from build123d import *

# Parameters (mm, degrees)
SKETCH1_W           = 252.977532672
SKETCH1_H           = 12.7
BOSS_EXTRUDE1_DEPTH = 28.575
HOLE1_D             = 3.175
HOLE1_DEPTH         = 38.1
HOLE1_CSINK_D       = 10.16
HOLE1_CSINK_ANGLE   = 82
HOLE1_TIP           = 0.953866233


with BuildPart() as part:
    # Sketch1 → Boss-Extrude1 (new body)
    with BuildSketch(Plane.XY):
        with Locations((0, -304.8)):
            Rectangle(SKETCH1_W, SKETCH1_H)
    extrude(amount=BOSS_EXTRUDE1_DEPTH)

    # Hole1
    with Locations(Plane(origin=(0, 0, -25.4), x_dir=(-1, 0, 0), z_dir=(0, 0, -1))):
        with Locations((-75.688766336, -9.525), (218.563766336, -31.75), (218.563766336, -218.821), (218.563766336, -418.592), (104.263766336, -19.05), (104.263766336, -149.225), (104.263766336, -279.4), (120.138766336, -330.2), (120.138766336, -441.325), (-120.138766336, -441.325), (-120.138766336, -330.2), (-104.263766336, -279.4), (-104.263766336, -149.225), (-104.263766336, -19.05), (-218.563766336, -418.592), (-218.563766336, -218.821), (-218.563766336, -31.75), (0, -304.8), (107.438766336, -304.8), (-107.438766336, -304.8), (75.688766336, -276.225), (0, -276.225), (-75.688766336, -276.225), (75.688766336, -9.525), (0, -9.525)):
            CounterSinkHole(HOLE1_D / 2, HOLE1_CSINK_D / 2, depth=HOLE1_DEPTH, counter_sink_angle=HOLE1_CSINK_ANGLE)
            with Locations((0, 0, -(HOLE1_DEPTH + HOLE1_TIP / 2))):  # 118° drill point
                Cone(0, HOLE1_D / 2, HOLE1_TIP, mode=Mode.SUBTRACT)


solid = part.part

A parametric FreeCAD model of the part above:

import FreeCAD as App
import Part
import Sketcher
Q = App.Units.Quantity

doc = App.newDocument("Part")
body = doc.addObject("PartDesign::Body", "Body")

sketch1 = doc.addObject("Sketcher::SketchObject", "Sketch")
body.addObject(sketch1)
sketch1.AttachmentSupport = (doc.XY_Plane, [""])
sketch1.MapMode = "FlatFace"
sketch1.addGeometry([
    Part.LineSegment(App.Vector(-126, -298, 0), App.Vector(-126, -311, 0)),
    Part.LineSegment(App.Vector(-126, -311, 0), App.Vector(126, -311, 0)),
    Part.LineSegment(App.Vector(126, -311, 0), App.Vector(126, -298, 0)),
    Part.LineSegment(App.Vector(126, -298, 0), App.Vector(-126, -298, 0)),
], False)
sketch1.addConstraint([
    Sketcher.Constraint("Coincident", 0, 2, 1, 1),
    Sketcher.Constraint("Coincident", 1, 2, 2, 1),
    Sketcher.Constraint("Coincident", 2, 2, 3, 1),
    Sketcher.Constraint("Coincident", 3, 2, 0, 1),
    Sketcher.Constraint("Vertical", 0),
    Sketcher.Constraint("Horizontal", 1),
    Sketcher.Constraint("Vertical", 2),
    Sketcher.Constraint("Horizontal", 3),
    Sketcher.Constraint("DistanceY", 0, 2, 0, 1, Q("0.5 in")),
    Sketcher.Constraint("DistanceY", 0, 2, -1, 1, Q("12.25 in")),
    Sketcher.Constraint("DistanceX", 1, 1, 1, 2, 252.977533),
    Sketcher.Constraint("DistanceX", 0, 2, -1, 1, 126.488766),
])
pad1 = doc.addObject("PartDesign::Pad", "Pad")
body.addObject(pad1)
pad1.Profile = sketch1
pad1.Length = Q("1.125 in")

sketch2 = doc.addObject("Sketcher::SketchObject", "Sketch001")
body.addObject(sketch2)
sketch2.AttachmentSupport = (doc.XY_Plane, [""])
sketch2.MapMode = "FlatFace"
sketch2.AttachmentOffset = App.Placement(App.Vector(0, 0, -1 * 25.4), App.Rotation())
sketch2.addGeometry([
    Part.Circle(App.Vector(75.7, -9.5, 0), App.Vector(0, 0, 1), 1.6),
    Part.Circle(App.Vector(-218.6, -31.8, 0), App.Vector(0, 0, 1), 1.6),
    Part.Circle(App.Vector(-218.6, -218.8, 0), App.Vector(0, 0, 1), 1.6),
    Part.Circle(App.Vector(-218.6, -418.6, 0), App.Vector(0, 0, 1), 1.6),
    Part.Circle(App.Vector(-104.3, -19.1, 0), App.Vector(0, 0, 1), 1.6),
    Part.Circle(App.Vector(-104.3, -149.2, 0), App.Vector(0, 0, 1), 1.6),
    Part.Circle(App.Vector(-104.3, -279.4, 0), App.Vector(0, 0, 1), 1.6),
    Part.Circle(App.Vector(-120.1, -330.2, 0), App.Vector(0, 0, 1), 1.6),
    Part.Circle(App.Vector(-120.1, -441.3, 0), App.Vector(0, 0, 1), 1.6),
    Part.Circle(App.Vector(120.1, -441.3, 0), App.Vector(0, 0, 1), 1.6),
    Part.Circle(App.Vector(120.1, -330.2, 0), App.Vector(0, 0, 1), 1.6),
    Part.Circle(App.Vector(104.3, -279.4, 0), App.Vector(0, 0, 1), 1.6),
    Part.Circle(App.Vector(104.3, -149.2, 0), App.Vector(0, 0, 1), 1.6),
    Part.Circle(App.Vector(104.3, -19.1, 0), App.Vector(0, 0, 1), 1.6),
    Part.Circle(App.Vector(218.6, -418.6, 0), App.Vector(0, 0, 1), 1.6),
    Part.Circle(App.Vector(218.6, -218.8, 0), App.Vector(0, 0, 1), 1.6),
    Part.Circle(App.Vector(218.6, -31.8, 0), App.Vector(0, 0, 1), 1.6),
    Part.Circle(App.Vector(0, -304.8, 0), App.Vector(0, 0, 1), 1.6),
    Part.Circle(App.Vector(-107.4, -304.8, 0), App.Vector(0, 0, 1), 1.6),
    Part.Circle(App.Vector(107.4, -304.8, 0), App.Vector(0, 0, 1), 1.6),
    Part.Circle(App.Vector(-75.7, -276.2, 0), App.Vector(0, 0, 1), 1.6),
    Part.Circle(App.Vector(0, -276.2, 0), App.Vector(0, 0, 1), 1.6),
    Part.Circle(App.Vector(75.7, -276.2, 0), App.Vector(0, 0, 1), 1.6),
    Part.Circle(App.Vector(-75.7, -9.5, 0), App.Vector(0, 0, 1), 1.6),
    Part.Circle(App.Vector(0, -9.5, 0), App.Vector(0, 0, 1), 1.6),
], False)
sketch2.addConstraint([
    Sketcher.Constraint("Equal", 0, 1),
    Sketcher.Constraint("Equal", 1, 2),
    Sketcher.Constraint("Equal", 2, 3),
    Sketcher.Constraint("Equal", 3, 4),
    Sketcher.Constraint("Equal", 4, 5),
    Sketcher.Constraint("Equal", 5, 6),
    Sketcher.Constraint("Equal", 6, 7),
    Sketcher.Constraint("Equal", 7, 8),
    Sketcher.Constraint("Equal", 8, 9),
    Sketcher.Constraint("Equal", 9, 10),
    Sketcher.Constraint("Equal", 10, 11),
    Sketcher.Constraint("Equal", 11, 12),
    Sketcher.Constraint("Equal", 12, 13),
    Sketcher.Constraint("Equal", 13, 14),
    Sketcher.Constraint("Equal", 14, 15),
    Sketcher.Constraint("Equal", 15, 16),
    Sketcher.Constraint("Equal", 16, 17),
    Sketcher.Constraint("Equal", 17, 18),
    Sketcher.Constraint("Equal", 18, 19),
    Sketcher.Constraint("Equal", 19, 20),
    Sketcher.Constraint("Equal", 20, 21),
    Sketcher.Constraint("Equal", 21, 22),
    Sketcher.Constraint("Equal", 22, 23),
    Sketcher.Constraint("Equal", 23, 24),
    Sketcher.Constraint("Symmetric", 8, 3, 9, 3, -2),
    Sketcher.Constraint("Symmetric", 7, 3, 10, 3, -2),
    Sketcher.Constraint("Symmetric", 6, 3, 11, 3, -2),
    Sketcher.Constraint("Symmetric", 5, 3, 12, 3, -2),
    Sketcher.Constraint("Symmetric", 4, 3, 13, 3, -2),
    Sketcher.Constraint("Symmetric", 3, 3, 14, 3, -2),
    Sketcher.Constraint("Symmetric", 2, 3, 15, 3, -2),
    Sketcher.Constraint("Symmetric", 1, 3, 16, 3, -2),
    Sketcher.Constraint("Symmetric", 18, 3, 19, 3, -2),
    Sketcher.Constraint("Symmetric", 20, 3, 22, 3, -2),
    Sketcher.Constraint("Symmetric", 0, 3, 23, 3, -2),
    Sketcher.Constraint("PointOnObject", 17, 3, -2),
    Sketcher.Constraint("PointOnObject", 21, 3, -2),
    Sketcher.Constraint("PointOnObject", 24, 3, -2),
    Sketcher.Constraint("Horizontal", 17, 3, 18, 3),
    Sketcher.Constraint("Horizontal", 20, 3, 21, 3),
    Sketcher.Constraint("Horizontal", 23, 3, 24, 3),
    Sketcher.Constraint("Vertical", 1, 3, 2, 3),
    Sketcher.Constraint("Vertical", 2, 3, 3, 3),
    Sketcher.Constraint("Vertical", 4, 3, 5, 3),
    Sketcher.Constraint("Vertical", 5, 3, 6, 3),
    Sketcher.Constraint("Vertical", 7, 3, 8, 3),
    Sketcher.Constraint("Vertical", 0, 3, 22, 3),
    Sketcher.Constraint("Diameter", 0, Q("0.125 in")),
    Sketcher.Constraint("DistanceY", 6, 3, -1, 1, Q("11 in")),
    Sketcher.Constraint("DistanceY", 7, 3, -1, 1, Q("13 in")),
    Sketcher.Constraint("DistanceY", 17, 3, -1, 1, Q("12 in")),
    Sketcher.Constraint("DistanceY", 20, 3, 5, 3, Q("5 in")),
    Sketcher.Constraint("DistanceX", 1, 3, 4, 3, Q("4.5 in")),
    Sketcher.Constraint("DistanceY", 1, 3, 4, 3, Q("0.5 in")),
    Sketcher.Constraint("DistanceY", 5, 3, 0, 3, Q("5.5 in")),
    Sketcher.Constraint("DistanceY", 8, 3, 5, 3, Q("11.5 in")),
    Sketcher.Constraint("DistanceX", 7, 3, 18, 3, Q("0.5 in")),
    Sketcher.Constraint("DistanceY", 1, 3, -1, 1, Q("1.25 in")),
    Sketcher.Constraint("DistanceY", 3, 3, -1, 1, Q("16.48 in")),
    Sketcher.Constraint("DistanceY", 2, 3, 0, 3, Q("8.24 in")),
    Sketcher.Constraint("DistanceX", 18, 3, 20, 3, Q("1.25 in")),
    Sketcher.Constraint("DistanceY", 0, 3, -1, 1, Q("0.375 in")),
    Sketcher.Constraint("DistanceX", 7, 3, 6, 3, Q("0.625 in")),
    Sketcher.Constraint("DistanceX", -1, 1, 0, 3, 75.688766),
])
doc.recompute()
hole = doc.addObject("PartDesign::Hole", "Hole")
body.addObject(hole)
hole.Profile = sketch2
hole.ThreadType = "None"
hole.Diameter = Q("0.125 in")
hole.DepthType = "Dimension"
hole.Depth = Q("1.5 in")
hole.DrillPoint = "Angled"
hole.DrillPointAngle = 118
hole.HoleCutType = "Countersink"
hole.HoleCutDiameter = Q("0.4 in")
hole.HoleCutCountersinkAngle = 82
hole.Reversed = True

doc.recompute()
